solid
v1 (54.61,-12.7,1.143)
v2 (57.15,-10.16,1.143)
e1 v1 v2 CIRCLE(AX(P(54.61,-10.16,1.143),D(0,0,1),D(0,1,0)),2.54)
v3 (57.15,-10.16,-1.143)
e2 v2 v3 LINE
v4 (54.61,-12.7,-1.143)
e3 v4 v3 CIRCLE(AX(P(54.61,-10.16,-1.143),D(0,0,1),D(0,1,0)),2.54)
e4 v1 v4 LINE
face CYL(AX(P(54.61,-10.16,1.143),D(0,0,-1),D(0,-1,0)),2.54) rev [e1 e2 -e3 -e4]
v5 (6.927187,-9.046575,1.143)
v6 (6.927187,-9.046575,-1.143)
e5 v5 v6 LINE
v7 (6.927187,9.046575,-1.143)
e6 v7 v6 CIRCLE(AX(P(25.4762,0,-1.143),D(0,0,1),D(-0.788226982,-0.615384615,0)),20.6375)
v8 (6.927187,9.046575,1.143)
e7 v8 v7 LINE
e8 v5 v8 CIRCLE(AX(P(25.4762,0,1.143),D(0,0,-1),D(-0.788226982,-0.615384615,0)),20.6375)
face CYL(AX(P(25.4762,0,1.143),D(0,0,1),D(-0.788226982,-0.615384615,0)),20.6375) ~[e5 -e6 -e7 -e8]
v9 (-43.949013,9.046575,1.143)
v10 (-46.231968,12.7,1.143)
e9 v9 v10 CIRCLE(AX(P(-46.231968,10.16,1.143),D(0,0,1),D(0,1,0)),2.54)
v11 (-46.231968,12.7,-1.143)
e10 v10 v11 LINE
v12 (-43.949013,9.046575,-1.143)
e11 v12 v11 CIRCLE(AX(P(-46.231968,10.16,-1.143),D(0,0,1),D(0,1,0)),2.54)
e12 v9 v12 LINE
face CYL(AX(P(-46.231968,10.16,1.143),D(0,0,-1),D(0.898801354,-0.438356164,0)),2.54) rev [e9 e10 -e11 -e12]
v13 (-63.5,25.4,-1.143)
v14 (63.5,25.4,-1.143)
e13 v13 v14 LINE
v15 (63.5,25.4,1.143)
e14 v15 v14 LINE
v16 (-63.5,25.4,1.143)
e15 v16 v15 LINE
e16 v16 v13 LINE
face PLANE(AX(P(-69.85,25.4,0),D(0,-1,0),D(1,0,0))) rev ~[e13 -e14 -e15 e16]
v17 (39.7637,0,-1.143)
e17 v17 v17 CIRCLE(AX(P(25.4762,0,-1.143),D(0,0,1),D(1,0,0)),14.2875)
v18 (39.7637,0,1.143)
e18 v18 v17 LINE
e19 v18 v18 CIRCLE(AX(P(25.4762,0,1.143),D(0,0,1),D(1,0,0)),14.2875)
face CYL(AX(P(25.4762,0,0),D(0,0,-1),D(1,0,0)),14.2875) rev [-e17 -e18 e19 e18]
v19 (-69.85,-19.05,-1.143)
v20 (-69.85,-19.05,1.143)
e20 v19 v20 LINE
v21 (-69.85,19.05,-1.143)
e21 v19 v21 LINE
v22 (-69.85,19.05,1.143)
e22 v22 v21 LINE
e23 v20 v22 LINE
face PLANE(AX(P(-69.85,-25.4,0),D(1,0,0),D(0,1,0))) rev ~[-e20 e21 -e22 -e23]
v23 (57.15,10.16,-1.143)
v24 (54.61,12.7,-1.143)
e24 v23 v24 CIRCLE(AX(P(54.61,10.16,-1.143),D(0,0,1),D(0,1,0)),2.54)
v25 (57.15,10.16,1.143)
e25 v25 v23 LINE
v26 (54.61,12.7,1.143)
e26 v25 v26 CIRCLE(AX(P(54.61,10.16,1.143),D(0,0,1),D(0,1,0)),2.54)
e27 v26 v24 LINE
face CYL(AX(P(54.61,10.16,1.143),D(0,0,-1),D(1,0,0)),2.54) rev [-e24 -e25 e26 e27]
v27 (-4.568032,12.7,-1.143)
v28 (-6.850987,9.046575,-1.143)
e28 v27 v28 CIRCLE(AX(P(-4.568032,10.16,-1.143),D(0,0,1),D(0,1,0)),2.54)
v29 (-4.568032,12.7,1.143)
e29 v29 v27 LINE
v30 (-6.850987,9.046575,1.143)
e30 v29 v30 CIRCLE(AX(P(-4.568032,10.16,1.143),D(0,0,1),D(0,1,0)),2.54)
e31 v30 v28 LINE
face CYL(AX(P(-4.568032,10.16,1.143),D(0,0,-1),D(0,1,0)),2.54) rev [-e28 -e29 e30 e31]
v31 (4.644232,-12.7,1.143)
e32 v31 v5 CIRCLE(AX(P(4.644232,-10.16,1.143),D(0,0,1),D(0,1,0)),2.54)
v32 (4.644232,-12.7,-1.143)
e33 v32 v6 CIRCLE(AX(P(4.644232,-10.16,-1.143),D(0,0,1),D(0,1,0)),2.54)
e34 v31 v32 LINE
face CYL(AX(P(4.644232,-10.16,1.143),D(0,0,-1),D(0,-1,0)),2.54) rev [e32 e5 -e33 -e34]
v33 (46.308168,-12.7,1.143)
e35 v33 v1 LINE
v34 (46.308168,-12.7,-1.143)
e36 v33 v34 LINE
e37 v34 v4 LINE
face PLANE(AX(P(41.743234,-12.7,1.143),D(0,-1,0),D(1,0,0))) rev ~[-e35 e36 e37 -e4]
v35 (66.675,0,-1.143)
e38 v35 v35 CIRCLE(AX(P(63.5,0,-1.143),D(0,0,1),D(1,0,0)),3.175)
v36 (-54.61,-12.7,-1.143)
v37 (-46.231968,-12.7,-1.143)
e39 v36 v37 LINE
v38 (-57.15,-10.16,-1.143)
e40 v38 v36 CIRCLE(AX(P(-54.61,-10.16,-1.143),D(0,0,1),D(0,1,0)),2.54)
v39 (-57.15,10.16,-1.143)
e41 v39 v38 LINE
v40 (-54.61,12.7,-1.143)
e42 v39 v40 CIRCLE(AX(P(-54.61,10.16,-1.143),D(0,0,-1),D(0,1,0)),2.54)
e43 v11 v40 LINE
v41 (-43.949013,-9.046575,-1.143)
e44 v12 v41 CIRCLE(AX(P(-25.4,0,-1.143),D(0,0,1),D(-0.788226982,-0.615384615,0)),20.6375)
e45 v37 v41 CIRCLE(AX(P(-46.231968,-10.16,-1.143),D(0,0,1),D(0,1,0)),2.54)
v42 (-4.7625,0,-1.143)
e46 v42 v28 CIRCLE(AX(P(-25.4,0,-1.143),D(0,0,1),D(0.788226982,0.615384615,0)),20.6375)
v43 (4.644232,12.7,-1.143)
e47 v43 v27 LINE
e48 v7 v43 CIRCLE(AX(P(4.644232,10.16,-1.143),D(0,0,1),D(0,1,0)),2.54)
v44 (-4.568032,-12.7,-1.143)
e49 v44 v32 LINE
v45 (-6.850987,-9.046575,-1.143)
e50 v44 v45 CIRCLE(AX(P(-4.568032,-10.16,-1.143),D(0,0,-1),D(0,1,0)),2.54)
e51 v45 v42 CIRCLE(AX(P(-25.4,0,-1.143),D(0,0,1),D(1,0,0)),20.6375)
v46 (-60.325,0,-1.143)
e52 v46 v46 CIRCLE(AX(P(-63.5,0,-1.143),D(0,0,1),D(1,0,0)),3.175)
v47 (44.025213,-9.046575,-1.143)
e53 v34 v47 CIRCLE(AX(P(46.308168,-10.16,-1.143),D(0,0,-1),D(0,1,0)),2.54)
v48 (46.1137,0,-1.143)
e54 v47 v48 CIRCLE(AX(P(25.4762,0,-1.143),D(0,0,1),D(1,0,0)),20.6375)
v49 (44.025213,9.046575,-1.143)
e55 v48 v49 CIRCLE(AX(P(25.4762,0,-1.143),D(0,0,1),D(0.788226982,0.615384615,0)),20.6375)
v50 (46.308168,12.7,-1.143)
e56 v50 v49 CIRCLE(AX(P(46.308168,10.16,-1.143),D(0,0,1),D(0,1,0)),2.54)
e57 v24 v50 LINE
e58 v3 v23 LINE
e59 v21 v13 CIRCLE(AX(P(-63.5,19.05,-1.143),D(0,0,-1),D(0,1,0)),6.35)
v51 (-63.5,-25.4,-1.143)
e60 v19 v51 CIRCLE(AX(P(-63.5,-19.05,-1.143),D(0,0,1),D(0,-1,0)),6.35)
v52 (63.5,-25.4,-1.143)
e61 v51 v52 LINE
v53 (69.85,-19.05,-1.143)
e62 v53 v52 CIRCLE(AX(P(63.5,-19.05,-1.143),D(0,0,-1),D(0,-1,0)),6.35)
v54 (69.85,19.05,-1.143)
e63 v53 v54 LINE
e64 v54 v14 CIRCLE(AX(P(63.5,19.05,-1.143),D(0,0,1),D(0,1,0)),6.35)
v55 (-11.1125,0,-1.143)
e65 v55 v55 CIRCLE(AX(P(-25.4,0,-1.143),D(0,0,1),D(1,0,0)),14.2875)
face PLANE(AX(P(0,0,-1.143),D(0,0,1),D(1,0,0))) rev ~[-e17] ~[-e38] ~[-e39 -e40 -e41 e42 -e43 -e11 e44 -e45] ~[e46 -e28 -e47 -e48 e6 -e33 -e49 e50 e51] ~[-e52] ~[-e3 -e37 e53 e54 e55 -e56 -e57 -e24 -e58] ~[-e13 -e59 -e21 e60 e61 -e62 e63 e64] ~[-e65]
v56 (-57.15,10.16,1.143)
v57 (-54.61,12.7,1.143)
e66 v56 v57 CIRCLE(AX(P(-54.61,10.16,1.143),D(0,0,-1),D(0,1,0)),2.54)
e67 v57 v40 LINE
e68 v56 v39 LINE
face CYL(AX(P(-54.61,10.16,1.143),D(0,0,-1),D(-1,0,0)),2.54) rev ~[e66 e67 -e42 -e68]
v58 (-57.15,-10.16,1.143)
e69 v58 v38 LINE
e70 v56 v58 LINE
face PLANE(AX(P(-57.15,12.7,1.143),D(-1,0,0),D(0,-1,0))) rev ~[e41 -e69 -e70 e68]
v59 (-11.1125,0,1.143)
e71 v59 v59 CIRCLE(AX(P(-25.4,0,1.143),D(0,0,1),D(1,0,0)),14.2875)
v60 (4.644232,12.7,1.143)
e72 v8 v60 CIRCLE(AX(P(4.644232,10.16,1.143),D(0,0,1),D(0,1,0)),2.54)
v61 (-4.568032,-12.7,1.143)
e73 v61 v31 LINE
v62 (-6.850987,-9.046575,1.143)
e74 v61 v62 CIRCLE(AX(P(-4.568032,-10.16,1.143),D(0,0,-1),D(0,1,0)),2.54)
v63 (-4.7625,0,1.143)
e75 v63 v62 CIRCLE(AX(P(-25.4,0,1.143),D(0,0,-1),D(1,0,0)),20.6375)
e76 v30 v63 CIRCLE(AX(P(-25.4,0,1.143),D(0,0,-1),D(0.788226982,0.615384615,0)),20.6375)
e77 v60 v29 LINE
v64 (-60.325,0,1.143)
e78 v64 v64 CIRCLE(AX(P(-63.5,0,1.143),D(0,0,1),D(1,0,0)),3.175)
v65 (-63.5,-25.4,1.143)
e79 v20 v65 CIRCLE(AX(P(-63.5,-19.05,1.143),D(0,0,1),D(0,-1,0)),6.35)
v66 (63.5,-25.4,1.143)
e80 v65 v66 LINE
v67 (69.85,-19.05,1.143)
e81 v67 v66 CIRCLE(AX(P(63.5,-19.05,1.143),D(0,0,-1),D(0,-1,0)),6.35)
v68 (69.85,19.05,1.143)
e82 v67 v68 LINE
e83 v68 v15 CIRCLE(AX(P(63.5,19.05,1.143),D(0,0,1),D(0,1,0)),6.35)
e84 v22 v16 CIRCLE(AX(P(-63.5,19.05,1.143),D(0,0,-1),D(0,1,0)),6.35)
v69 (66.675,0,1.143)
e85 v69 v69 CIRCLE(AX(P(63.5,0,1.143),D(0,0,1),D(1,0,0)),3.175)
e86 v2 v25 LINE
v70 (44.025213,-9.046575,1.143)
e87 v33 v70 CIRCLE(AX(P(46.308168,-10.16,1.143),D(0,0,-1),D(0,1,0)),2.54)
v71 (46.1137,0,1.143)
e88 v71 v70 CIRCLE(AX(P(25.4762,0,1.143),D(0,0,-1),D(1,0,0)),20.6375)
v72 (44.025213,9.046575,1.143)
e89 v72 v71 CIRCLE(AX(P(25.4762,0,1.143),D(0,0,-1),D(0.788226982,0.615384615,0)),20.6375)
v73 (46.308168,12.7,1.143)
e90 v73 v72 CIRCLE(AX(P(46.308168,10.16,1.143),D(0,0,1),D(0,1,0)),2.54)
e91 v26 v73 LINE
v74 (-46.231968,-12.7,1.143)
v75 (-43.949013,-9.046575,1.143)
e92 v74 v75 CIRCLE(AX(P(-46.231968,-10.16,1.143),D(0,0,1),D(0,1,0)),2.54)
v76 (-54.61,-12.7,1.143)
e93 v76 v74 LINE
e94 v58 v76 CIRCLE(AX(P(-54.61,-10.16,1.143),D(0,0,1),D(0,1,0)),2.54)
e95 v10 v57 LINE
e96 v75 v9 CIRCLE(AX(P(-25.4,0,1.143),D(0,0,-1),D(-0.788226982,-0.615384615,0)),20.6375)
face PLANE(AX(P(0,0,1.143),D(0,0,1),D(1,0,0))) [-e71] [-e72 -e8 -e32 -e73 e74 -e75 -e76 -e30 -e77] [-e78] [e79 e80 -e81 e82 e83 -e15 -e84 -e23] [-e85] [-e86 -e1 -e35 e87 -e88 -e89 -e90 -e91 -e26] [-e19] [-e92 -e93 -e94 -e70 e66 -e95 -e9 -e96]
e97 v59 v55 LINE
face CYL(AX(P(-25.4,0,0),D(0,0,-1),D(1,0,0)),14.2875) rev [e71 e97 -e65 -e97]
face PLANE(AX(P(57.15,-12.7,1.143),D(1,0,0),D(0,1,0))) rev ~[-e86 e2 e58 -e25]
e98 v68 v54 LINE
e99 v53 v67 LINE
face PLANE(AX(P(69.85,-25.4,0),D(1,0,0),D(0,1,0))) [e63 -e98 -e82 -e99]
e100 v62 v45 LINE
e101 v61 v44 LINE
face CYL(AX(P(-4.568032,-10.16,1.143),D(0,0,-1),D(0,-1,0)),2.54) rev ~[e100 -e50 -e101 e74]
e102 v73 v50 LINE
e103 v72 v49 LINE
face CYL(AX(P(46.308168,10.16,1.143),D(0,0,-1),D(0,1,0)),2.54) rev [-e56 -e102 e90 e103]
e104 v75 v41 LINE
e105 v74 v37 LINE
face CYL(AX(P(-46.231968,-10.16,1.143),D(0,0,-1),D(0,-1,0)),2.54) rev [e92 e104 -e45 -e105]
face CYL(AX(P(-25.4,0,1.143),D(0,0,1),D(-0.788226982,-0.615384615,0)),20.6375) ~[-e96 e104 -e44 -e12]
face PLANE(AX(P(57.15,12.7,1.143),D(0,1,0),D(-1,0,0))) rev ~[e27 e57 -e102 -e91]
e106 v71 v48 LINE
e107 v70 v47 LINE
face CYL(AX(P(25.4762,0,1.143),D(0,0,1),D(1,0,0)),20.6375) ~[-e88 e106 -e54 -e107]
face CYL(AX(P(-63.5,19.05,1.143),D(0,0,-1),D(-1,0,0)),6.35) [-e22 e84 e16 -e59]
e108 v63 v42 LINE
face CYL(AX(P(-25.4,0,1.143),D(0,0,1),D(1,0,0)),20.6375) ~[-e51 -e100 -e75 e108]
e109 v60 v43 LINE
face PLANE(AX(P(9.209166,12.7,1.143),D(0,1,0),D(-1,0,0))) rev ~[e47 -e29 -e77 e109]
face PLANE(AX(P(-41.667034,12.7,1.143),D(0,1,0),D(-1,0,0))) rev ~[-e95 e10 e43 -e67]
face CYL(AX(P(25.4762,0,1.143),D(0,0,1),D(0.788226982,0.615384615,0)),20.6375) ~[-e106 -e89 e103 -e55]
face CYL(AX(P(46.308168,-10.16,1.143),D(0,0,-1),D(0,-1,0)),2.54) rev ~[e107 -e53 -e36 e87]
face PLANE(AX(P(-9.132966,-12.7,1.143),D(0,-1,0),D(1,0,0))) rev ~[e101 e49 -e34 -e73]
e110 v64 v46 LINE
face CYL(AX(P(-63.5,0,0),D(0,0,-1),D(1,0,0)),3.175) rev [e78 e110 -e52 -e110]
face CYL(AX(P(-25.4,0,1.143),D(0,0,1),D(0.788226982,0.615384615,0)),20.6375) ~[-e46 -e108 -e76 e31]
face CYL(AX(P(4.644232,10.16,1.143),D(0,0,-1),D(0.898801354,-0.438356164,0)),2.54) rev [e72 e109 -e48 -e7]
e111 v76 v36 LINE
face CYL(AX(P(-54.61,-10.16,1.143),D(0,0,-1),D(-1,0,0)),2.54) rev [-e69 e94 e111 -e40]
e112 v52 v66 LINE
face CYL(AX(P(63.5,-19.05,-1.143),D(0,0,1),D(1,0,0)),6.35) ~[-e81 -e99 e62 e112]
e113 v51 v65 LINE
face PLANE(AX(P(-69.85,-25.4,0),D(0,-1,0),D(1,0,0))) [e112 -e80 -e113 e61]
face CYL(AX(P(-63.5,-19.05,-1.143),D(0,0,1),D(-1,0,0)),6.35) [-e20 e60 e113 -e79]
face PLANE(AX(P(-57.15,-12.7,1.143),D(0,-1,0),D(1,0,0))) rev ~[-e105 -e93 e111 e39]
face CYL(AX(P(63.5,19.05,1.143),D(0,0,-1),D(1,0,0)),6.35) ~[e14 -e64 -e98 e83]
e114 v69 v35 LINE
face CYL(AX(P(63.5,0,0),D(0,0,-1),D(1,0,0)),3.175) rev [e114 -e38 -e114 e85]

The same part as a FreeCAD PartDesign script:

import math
import FreeCAD as App
import Part
import Sketcher
from FreeCAD import Vector
Q = App.Units.Quantity


def edges_at(feature, points):
    """Names of the edges that pass closest to the given points."""
    edges = feature.Shape.Edges
    near = lambda p: min(range(len(edges)), key=lambda i: edges[i].distToShape(Part.Vertex(*p))[0])
    return sorted({f"Edge{near(p) + 1}" for p in points})


def add_polygon(sketch, points):
    """Adds a closed chain of lines whose ends are joined by coincident constraints."""
    first, n = sketch.GeometryCount, len(points)
    for a, b in zip(points, points[1:] + points[:1]):
        sketch.addGeometry(Part.LineSegment(App.Vector(*a, 0), App.Vector(*b, 0)), False)
    for i in range(n):
        sketch.addConstraint(Sketcher.Constraint("Coincident", first + i, 2, first + (i + 1) % n, 1))

doc = App.newDocument("Part")
params = doc.addObject("Spreadsheet::Sheet", "Params")
for row, (alias, value) in enumerate([
    ("sketch1_diameter", "0.25 in"),
    ("sketch1_height", "2 in"),
    ("sketch1_diameter2", "1.125 in"),
    ("sketch1_width", "5.5 in"),
    ("pad1_length", "0.09 in"),
    ("fillet_radius", "0.25 in"),
    ("sketch2_height", "1 in"),
    ("sketch2_radius", "0.8125 in"),
    ("pocket1_length", "0.1 in"),
    ("fillet2_radius", "0.1 in"),
], start=1):
    params.set(f"A{row}", alias)
    params.set(f"B{row}", "=" + value)
    params.setAlias(f"B{row}", alias)

body = doc.addObject("PartDesign::Body", "Body")

# Sketch on XY plane
sketch1 = body.newObject("Sketcher::SketchObject", "Sketch")
sketch1.AttachmentSupport = (doc.getObject("XY_Plane"), [""])
sketch1.MapMode = "FlatFace"
add_polygon(sketch1, [(-69.8, 25.4), (-69.8, -25.4), (69.8, -25.4), (69.8, 25.4)])  # lines 0-3
sketch1.addGeometry(Part.Circle(Vector(-63.5, 0, 0), Vector(0, 0, 1), 3.2), False)  # 4
sketch1.addGeometry(Part.Circle(Vector(-25.4, 0, 0), Vector(0, 0, 1), 14.3), False)  # 5
sketch1.addGeometry(Part.Circle(Vector(25.5, 0, 0), Vector(0, 0, 1), 14.3), False)  # 6
sketch1.addGeometry(Part.Circle(Vector(63.5, 0, 0), Vector(0, 0, 1), 3.2), False)  # 7
sketch1.addConstraint(Sketcher.Constraint("Vertical", 0))
sketch1.addConstraint(Sketcher.Constraint("Horizontal", 1))
sketch1.addConstraint(Sketcher.Constraint("Vertical", 2))
sketch1.addConstraint(Sketcher.Constraint("Horizontal", 3))
sketch1.addConstraint(Sketcher.Constraint("Equal", 5, 6))
sketch1.addConstraint(Sketcher.Constraint("Equal", 4, 7))
sketch1.addConstraint(Sketcher.Constraint("Symmetric", 4, 3, 7, 3, -1, 1))
sketch1.addConstraint(Sketcher.Constraint("Symmetric", 0, 2, 2, 2, -1, 1))
sketch1.addConstraint(Sketcher.Constraint("PointOnObject", 4, 3, -1))
sketch1.addConstraint(Sketcher.Constraint("PointOnObject", 5, 3, -1))
sketch1.addConstraint(Sketcher.Constraint("PointOnObject", 6, 3, -1))
sketch1.addConstraint(Sketcher.Constraint("Diameter", 4, Q("0.25 in")))
sketch1.addConstraint(Sketcher.Constraint("DistanceY", 0, 2, 0, 1, Q("2 in")))
sketch1.addConstraint(Sketcher.Constraint("Diameter", 5, Q("1.125 in")))
sketch1.addConstraint(Sketcher.Constraint("DistanceX", 1, 1, 1, 2, Q("5.5 in")))
sketch1.addConstraint(Sketcher.Constraint("DistanceX", 5, 3, -1, 1, Q("1 in")))
sketch1.addConstraint(Sketcher.Constraint("DistanceX", 4, 3, 7, 3, Q("5 in")))
sketch1.addConstraint(Sketcher.Constraint("DistanceX", -1, 1, 6, 3, Q("1.003 in")))
sketch1.setExpression("Constraints[15]", "Params.sketch1_diameter")
sketch1.setExpression("Constraints[16]", "Params.sketch1_height")
sketch1.setExpression("Constraints[17]", "Params.sketch1_diameter2")
sketch1.setExpression("Constraints[18]", "Params.sketch1_width")
pad1 = body.newObject("PartDesign::Pad", "Pad")
pad1.Profile = sketch1
pad1.setExpression("Length", "Params.pad1_length")
pad1.Midplane = True
doc.recompute()

fillet = body.newObject("PartDesign::Fillet", "Fillet")
fillet.Base = (pad1, edges_at(pad1, [
    (69.85, -25.4, 0),
    (-69.85, -25.4, 0),
    (-69.85, 25.4, 0),
    (69.85, 25.4, 0),
]))
fillet.setExpression("Radius", "Params.fillet_radius")

# Sketch on XY plane
sketch2 = body.newObject("Sketcher::SketchObject", "Sketch001")
sketch2.AttachmentSupport = (doc.getObject("XY_Plane"), [""])
sketch2.MapMode = "FlatFace"
sketch2.AttachmentOffset = App.Placement(Vector(0, 0, 0.045 * 25.4), App.Rotation())
sketch2.addGeometry(Part.LineSegment(Vector(-57, 13, 0), Vector(-57, -13, 0)), False)
sketch2.addGeometry(Part.LineSegment(Vector(-57, -13, 0), Vector(-42, -13, 0)), False)
sketch2.addGeometry(Part.ArcOfCircle(Part.Circle(Vector(-25, 0, 0), Vector(0, 0, 1), 21), math.radians(142), math.radians(218)), False)
sketch2.addGeometry(Part.LineSegment(Vector(-42, 13, 0), Vector(-57, 13, 0)), False)
sketch2.addGeometry(Part.ArcOfCircle(Part.Circle(Vector(-25, 0, 0), Vector(0, 0, 1), 21), math.radians(-38), math.radians(0)), False)
sketch2.addGeometry(Part.LineSegment(Vector(-9, -13, 0), Vector(9, -13, 0)), False)
sketch2.addGeometry(Part.ArcOfCircle(Part.Circle(Vector(25, 0, 0), Vector(0, 0, 1), 21), math.radians(142), math.radians(218)), False)
sketch2.addGeometry(Part.LineSegment(Vector(9, 13, 0), Vector(-9, 13, 0)), False)
sketch2.addGeometry(Part.ArcOfCircle(Part.Circle(Vector(-25, 0, 0), Vector(0, 0, 1), 21), math.radians(0), math.radians(38)), False)
sketch2.addGeometry(Part.ArcOfCircle(Part.Circle(Vector(25, 0, 0), Vector(0, 0, 1), 21), math.radians(-38), math.radians(0)), False)
sketch2.addGeometry(Part.LineSegment(Vector(42, -13, 0), Vector(57, -13, 0)), False)
sketch2.addGeometry(Part.LineSegment(Vector(57, -13, 0), Vector(57, 13, 0)), False)
sketch2.addGeometry(Part.LineSegment(Vector(57, 13, 0), Vector(42, 13, 0)), False)
sketch2.addGeometry(Part.ArcOfCircle(Part.Circle(Vector(25, 0, 0), Vector(0, 0, 1), 21), math.radians(0), math.radians(38)), False)
sketch2.addConstraint(Sketcher.Constraint("Coincident", 0, 2, 1, 1))
sketch2.addConstraint(Sketcher.Constraint("Coincident", 1, 2, 2, 2))
sketch2.addConstraint(Sketcher.Constraint("Coincident", 2, 1, 3, 1))
sketch2.addConstraint(Sketcher.Constraint("Coincident", 3, 2, 0, 1))
sketch2.addConstraint(Sketcher.Constraint("Coincident", 4, 1, 5, 1))
sketch2.addConstraint(Sketcher.Constraint("Coincident", 5, 2, 6, 2))
sketch2.addConstraint(Sketcher.Constraint("Coincident", 6, 1, 7, 1))
sketch2.addConstraint(Sketcher.Constraint("Coincident", 7, 2, 8, 2))
sketch2.addConstraint(Sketcher.Constraint("Tangent", 8, 1, 4, 2))
sketch2.addConstraint(Sketcher.Constraint("Coincident", 9, 1, 10, 1))
sketch2.addConstraint(Sketcher.Constraint("Coincident", 10, 2, 11, 1))
sketch2.addConstraint(Sketcher.Constraint("Coincident", 11, 2, 12, 1))
sketch2.addConstraint(Sketcher.Constraint("Coincident", 12, 2, 13, 2))
sketch2.addConstraint(Sketcher.Constraint("Tangent", 13, 1, 9, 2))
sketch2.addConstraint(Sketcher.Constraint("Vertical", 0))
sketch2.addConstraint(Sketcher.Constraint("Horizontal", 1))
sketch2.addConstraint(Sketcher.Constraint("Horizontal", 3))
sketch2.addConstraint(Sketcher.Constraint("Horizontal", 5))
sketch2.addConstraint(Sketcher.Constraint("Horizontal", 7))
sketch2.addConstraint(Sketcher.Constraint("Horizontal", 10))
sketch2.addConstraint(Sketcher.Constraint("Vertical", 11))
sketch2.addConstraint(Sketcher.Constraint("Horizontal", 12))
sketch2.addConstraint(Sketcher.Constraint("Coincident", 4, 3, 2, 3))
sketch2.addConstraint(Sketcher.Constraint("Coincident", 9, 3, 6, 3))
sketch2.addConstraint(Sketcher.Constraint("Equal", 2, 4))
sketch2.addConstraint(Sketcher.Constraint("Equal", 4, 6))
sketch2.addConstraint(Sketcher.Constraint("Equal", 6, 8))
sketch2.addConstraint(Sketcher.Constraint("Equal", 8, 9))
sketch2.addConstraint(Sketcher.Constraint("Equal", 9, 13))
sketch2.addConstraint(Sketcher.Constraint("Symmetric", 3, 2, 10, 2, -1, 1))
sketch2.addConstraint(Sketcher.Constraint("Symmetric", 1, 2, 2, 1, -1))
sketch2.addConstraint(Sketcher.Constraint("Symmetric", 5, 2, 6, 1, -1))
sketch2.addConstraint(Sketcher.Constraint("PointOnObject", 8, 1, -1))
sketch2.addConstraint(Sketcher.Constraint("PointOnObject", 13, 1, -1))
sketch2.addConstraint(Sketcher.Constraint("Horizontal", 1, 2, 4, 1))
sketch2.addConstraint(Sketcher.Constraint("Horizontal", 7, 2, 11, 2))
sketch2.addConstraint(Sketcher.Constraint("DistanceY", 0, 2, 0, 1, Q("1 in")))
sketch2.addConstraint(Sketcher.Constraint("DistanceX", 2, 3, -1, 1, Q("1 in")))
sketch2.addConstraint(Sketcher.Constraint("Radius", 2, Q("0.8125 in")))
sketch2.addConstraint(Sketcher.Constraint("DistanceX", 0, 2, -1, 1, Q("2.25 in")))
sketch2.addConstraint(Sketcher.Constraint("DistanceX", -1, 1, 6, 3, Q("1.003 in")))
sketch2.setExpression("Constraints[36]", "Params.sketch2_height")
sketch2.setExpression("Constraints[38]", "Params.sketch2_radius")
pocket1 = body.newObject("PartDesign::Pocket", "Pocket")
pocket1.Profile = sketch2
pocket1.setExpression("Length", "Params.pocket1_length")
doc.recompute()

fillet2 = body.newObject("PartDesign::Fillet", "Fillet001")
fillet2.Base = (pocket1, edges_at(pocket1, [
    (-41.667, 12.7, 0),
    (-41.667, -12.7, 0),
    (-57.15, -12.7, 0),
    (-57.15, 12.7, 0),
    (9.209, 12.7, 0),
    (9.209, -12.7, 0),
    (-9.133, -12.7, 0),
    (-9.133, 12.7, 0),
    (41.743, -12.7, 0),
    (41.743, 12.7, 0),
    (57.15, 12.7, 0),
    (57.15, -12.7, 0),
]))
fillet2.setExpression("Radius", "Params.fillet2_radius")

doc.recompute()
